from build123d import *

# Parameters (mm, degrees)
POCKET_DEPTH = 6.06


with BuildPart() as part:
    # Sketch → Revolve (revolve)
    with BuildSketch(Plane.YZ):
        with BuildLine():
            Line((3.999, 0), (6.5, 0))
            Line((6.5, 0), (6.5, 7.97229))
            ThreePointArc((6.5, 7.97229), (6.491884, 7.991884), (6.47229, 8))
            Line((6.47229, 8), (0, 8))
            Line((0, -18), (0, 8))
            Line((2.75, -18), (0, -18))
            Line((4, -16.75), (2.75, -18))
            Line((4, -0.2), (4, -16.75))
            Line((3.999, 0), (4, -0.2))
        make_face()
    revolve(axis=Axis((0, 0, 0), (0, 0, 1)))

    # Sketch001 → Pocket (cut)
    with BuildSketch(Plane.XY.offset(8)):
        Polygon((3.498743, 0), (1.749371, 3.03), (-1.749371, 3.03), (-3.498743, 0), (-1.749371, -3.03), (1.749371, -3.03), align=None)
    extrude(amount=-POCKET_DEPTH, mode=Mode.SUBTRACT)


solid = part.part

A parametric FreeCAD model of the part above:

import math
import FreeCAD as App
import Part
import Sketcher
Q = App.Units.Quantity


def add_polygon(sketch, points):
    """Adds a closed chain of lines whose ends are joined by coincident constraints."""
    first, n = sketch.GeometryCount, len(points)
    for a, b in zip(points, points[1:] + points[:1]):
        sketch.addGeometry(Part.LineSegment(App.Vector(*a, 0), App.Vector(*b, 0)), False)
    for i in range(n):
        sketch.addConstraint(Sketcher.Constraint("Coincident", first + i, 2, first + (i + 1) % n, 1))

doc = App.newDocument("Part")
body = doc.addObject("PartDesign::Body", "Body")

sketch1 = body.newObject("Sketcher::SketchObject", "Sketch")
sketch1.AttachmentSupport = (doc.getObject("YZ_Plane"), [""])
sketch1.MapMode = "FlatFace"
sketch1.addGeometry([
    Part.LineSegment(App.Vector(3.999, 0, 0), App.Vector(6.5, 0, 0)),
    Part.LineSegment(App.Vector(6.5, 0, 0), App.Vector(6.5, 7.972, 0)),
    Part.ArcOfCircle(Part.Circle(App.Vector(6.472, 7.972, 0), App.Vector(0, 0, 1), 0.028), math.radians(0), math.radians(90)),
    Part.LineSegment(App.Vector(6.472, 8, 0), App.Vector(0, 8, 0)),
    Part.LineSegment(App.Vector(0, 8, 0), App.Vector(0, -18, 0)),
    Part.LineSegment(App.Vector(0, -18, 0), App.Vector(2.75, -18, 0)),
    Part.LineSegment(App.Vector(2.75, -18, 0), App.Vector(4, -16.75, 0)),
    Part.LineSegment(App.Vector(4, -16.75, 0), App.Vector(4, -0.2, 0)),
    Part.LineSegment(App.Vector(4, -0.2, 0), App.Vector(3.999, 0, 0)),
], False)
sketch1.addConstraint([
    Sketcher.Constraint("Coincident", 0, 2, 1, 1),
    Sketcher.Constraint("Coincident", 1, 2, 2, 1),
    Sketcher.Constraint("Coincident", 2, 2, 3, 1),
    Sketcher.Constraint("Coincident", 3, 2, 4, 1),
    Sketcher.Constraint("Coincident", 4, 2, 5, 1),
    Sketcher.Constraint("Coincident", 5, 2, 6, 1),
    Sketcher.Constraint("Coincident", 6, 2, 7, 1),
    Sketcher.Constraint("Coincident", 7, 2, 8, 1),
    Sketcher.Constraint("Coincident", 8, 2, 0, 1),
    Sketcher.Constraint("Horizontal", 0),
    Sketcher.Constraint("Vertical", 1),
    Sketcher.Constraint("Horizontal", 3),
    Sketcher.Constraint("Vertical", 4),
    Sketcher.Constraint("Horizontal", 5),
    Sketcher.Constraint("Vertical", 7),
    Sketcher.Constraint("PointOnObject", 0, 2, -1),
    Sketcher.Constraint("PointOnObject", 3, 2, -2),
    Sketcher.Constraint("Horizontal", 2, 3, 1, 2),
    Sketcher.Constraint("DistanceY", 4, 2, 4, 1, 26.0),
    Sketcher.Constraint("Angle", 6, Q("45 deg")),
    Sketcher.Constraint("DistanceY", -1, 1, 2, 2, 8.0),
    Sketcher.Constraint("DistanceX", -1, 1, 6, 2, 4.0),
    Sketcher.Constraint("DistanceX", 5, 1, 5, 2, 2.75),
    Sketcher.Constraint("DistanceY", 7, 1, 7, 2, 16.55),
    Sketcher.Constraint("DistanceX", -1, 1, 0, 2, 6.5),
    Sketcher.Constraint("DistanceX", 0, 1, 0, 2, 2.501),
    Sketcher.Constraint("Radius", 2, 0.02771),
    Sketcher.Constraint("DistanceX", 3, 2, 3, 1, 6.47229),
])
revolution = body.newObject("PartDesign::Revolution", "Revolution")
revolution.Profile = sketch1
revolution.ReferenceAxis = (sketch1, ["V_Axis"])
revolution.Angle = 360

sketch2 = body.newObject("Sketcher::SketchObject", "Sketch001")
sketch2.AttachmentSupport = (doc.getObject("XY_Plane"), [""])
sketch2.MapMode = "FlatFace"
sketch2.AttachmentOffset = App.Placement(App.Vector(0, 0, 8), App.Rotation())
add_polygon(sketch2, [(3.5, 0), (1.7, 3), (-1.7, 3), (-3.5, 0), (-1.7, -3), (1.7, -3)])
sketch2.addConstraint([
    Sketcher.Constraint("Horizontal", 1),
    Sketcher.Constraint("Horizontal", 4),
    Sketcher.Constraint("Symmetric", 0, 2, 3, 2, -1, 1),
    Sketcher.Constraint("Symmetric", 2, 2, 5, 2, -1, 1),
    Sketcher.Constraint("PointOnObject", 2, 2, -1),
    Sketcher.Constraint("Parallel", 2, 5),
    Sketcher.Constraint("Vertical", 1, 2, 3, 2),
    Sketcher.Constraint("Angle", 0, Q("120.00001 deg")),
    Sketcher.Constraint("DistanceY", -1, 1, 0, 2, 3.03),
    Sketcher.Constraint("DistanceX", 1, 2, 1, 1, 3.498742),
])
pocket1 = body.newObject("PartDesign::Pocket", "Pocket")
pocket1.Profile = sketch2
pocket1.Length = 6.06

doc.recompute()
